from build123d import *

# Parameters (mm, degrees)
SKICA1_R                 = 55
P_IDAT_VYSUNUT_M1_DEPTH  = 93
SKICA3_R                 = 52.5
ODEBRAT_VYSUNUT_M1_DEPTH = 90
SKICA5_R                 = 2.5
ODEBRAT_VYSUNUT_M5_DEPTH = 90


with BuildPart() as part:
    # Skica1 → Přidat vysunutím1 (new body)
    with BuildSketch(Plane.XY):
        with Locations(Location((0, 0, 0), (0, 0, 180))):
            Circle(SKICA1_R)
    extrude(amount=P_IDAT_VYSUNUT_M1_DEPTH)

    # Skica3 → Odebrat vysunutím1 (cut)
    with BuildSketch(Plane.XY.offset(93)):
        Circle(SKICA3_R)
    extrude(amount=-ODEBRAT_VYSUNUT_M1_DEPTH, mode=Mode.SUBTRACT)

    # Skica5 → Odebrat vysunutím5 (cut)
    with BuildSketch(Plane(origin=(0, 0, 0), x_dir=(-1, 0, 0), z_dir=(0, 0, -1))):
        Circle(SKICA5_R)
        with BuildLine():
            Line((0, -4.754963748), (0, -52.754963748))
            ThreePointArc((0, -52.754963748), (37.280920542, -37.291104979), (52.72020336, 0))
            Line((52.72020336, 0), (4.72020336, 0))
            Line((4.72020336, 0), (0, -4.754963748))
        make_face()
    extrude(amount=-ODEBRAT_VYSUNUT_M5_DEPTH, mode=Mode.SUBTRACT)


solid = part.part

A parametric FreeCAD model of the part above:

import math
import FreeCAD as App
import Part
import Sketcher

doc = App.newDocument("Part")
params = doc.addObject("Spreadsheet::Sheet", "Params")
for row, (alias, value) in enumerate([
    ("sketch1_diameter", "110 mm"),
    ("pad1_length", "93 mm"),
    ("sketch2_diameter", "105 mm"),
    ("pocket1_length", "90 mm"),
    ("sketch3_diameter", "5 mm"),
    ("sketch3_width", "48 mm"),
    ("sketch3_length", "6.7 mm"),
    ("pocket2_length", "90 mm"),
], start=1):
    params.set(f"A{row}", alias)
    params.set(f"B{row}", "=" + value)
    params.setAlias(f"B{row}", alias)

body = doc.addObject("PartDesign::Body", "Body")

# Sketch on XY plane
sketch1 = body.newObject("Sketcher::SketchObject", "Sketch")
sketch1.AttachmentSupport = (doc.getObject("XY_Plane"), [""])
sketch1.MapMode = "FlatFace"
sketch1.addGeometry(Part.Circle(App.Vector(0, 0, 0), App.Vector(0, 0, 1), 55), False)
sketch1.addConstraint(Sketcher.Constraint("Coincident", 0, 3, -1, 1))
sketch1.addConstraint(Sketcher.Constraint("Diameter", 0, 110.0))
sketch1.setExpression("Constraints[1]", "Params.sketch1_diameter")
pad1 = body.newObject("PartDesign::Pad", "Pad")
pad1.Profile = sketch1
pad1.setExpression("Length", "Params.pad1_length")

# Sketch on XY plane
sketch2 = body.newObject("Sketcher::SketchObject", "Sketch001")
sketch2.AttachmentSupport = (doc.getObject("XY_Plane"), [""])
sketch2.MapMode = "FlatFace"
sketch2.AttachmentOffset = App.Placement(App.Vector(0, 0, 93), App.Rotation())
sketch2.addGeometry(Part.Circle(App.Vector(0, 0, 0), App.Vector(0, 0, 1), 52.5), False)
sketch2.addConstraint(Sketcher.Constraint("Coincident", 0, 3, -1, 1))
sketch2.addConstraint(Sketcher.Constraint("Diameter", 0, 105.0))
sketch2.setExpression("Constraints[1]", "Params.sketch2_diameter")
pocket1 = body.newObject("PartDesign::Pocket", "Pocket")
pocket1.Profile = sketch2
pocket1.setExpression("Length", "Params.pocket1_length")

# Sketch on XY plane
sketch3 = body.newObject("Sketcher::SketchObject", "Sketch002")
sketch3.AttachmentSupport = (doc.getObject("XY_Plane"), [""])
sketch3.MapMode = "FlatFace"
sketch3.addGeometry(Part.Circle(App.Vector(0, 0, 0), App.Vector(0, 0, 1), 2.5), False)
sketch3.addGeometry(Part.LineSegment(App.Vector(0, -4.754964, 0), App.Vector(0, -52.754964, 0)), False)
sketch3.addGeometry(Part.ArcOfCircle(Part.Circle(App.Vector(0.034772, 0, 0), App.Vector(0, 0, 1), 52.754975), math.radians(-180), math.radians(-90.037765)), False)
sketch3.addGeometry(Part.LineSegment(App.Vector(-52.720203, 0, 0), App.Vector(-4.720203, 0, 0)), False)
sketch3.addGeometry(Part.LineSegment(App.Vector(-4.720203, 0, 0), App.Vector(0, -4.754964, 0)), False)
sketch3.addConstraint(Sketcher.Constraint("Coincident", 1, 2, 2, 2))
sketch3.addConstraint(Sketcher.Constraint("Coincident", 2, 1, 3, 1))
sketch3.addConstraint(Sketcher.Constraint("Coincident", 3, 2, 4, 1))
sketch3.addConstraint(Sketcher.Constraint("Coincident", 4, 2, 1, 1))
sketch3.addConstraint(Sketcher.Constraint("Vertical", 1))
sketch3.addConstraint(Sketcher.Constraint("Horizontal", 3))
sketch3.addConstraint(Sketcher.Constraint("Coincident", 0, 3, -1, 1))
sketch3.addConstraint(Sketcher.Constraint("PointOnObject", 2, 3, -1))
sketch3.addConstraint(Sketcher.Constraint("PointOnObject", 1, 2, -2))
sketch3.addConstraint(Sketcher.Constraint("PointOnObject", 2, 1, -1))
sketch3.addConstraint(Sketcher.Constraint("Equal", 3, 1))
sketch3.addConstraint(Sketcher.Constraint("Diameter", 0, 5.0))
sketch3.addConstraint(Sketcher.Constraint("DistanceX", 3, 1, 3, 2, 48.0))
sketch3.addConstraint(Sketcher.Constraint("Distance", 4, 6.7))
sketch3.addConstraint(Sketcher.Constraint("Radius", 2, 52.754975))
sketch3.setExpression("Constraints[11]", "Params.sketch3_diameter")
sketch3.setExpression("Constraints[12]", "Params.sketch3_width")
sketch3.setExpression("Constraints[13]", "Params.sketch3_length")
pocket2 = body.newObject("PartDesign::Pocket", "Pocket001")
pocket2.Profile = sketch3
pocket2.setExpression("Length", "Params.pocket2_length")
pocket2.Reversed = True

doc.recompute()
